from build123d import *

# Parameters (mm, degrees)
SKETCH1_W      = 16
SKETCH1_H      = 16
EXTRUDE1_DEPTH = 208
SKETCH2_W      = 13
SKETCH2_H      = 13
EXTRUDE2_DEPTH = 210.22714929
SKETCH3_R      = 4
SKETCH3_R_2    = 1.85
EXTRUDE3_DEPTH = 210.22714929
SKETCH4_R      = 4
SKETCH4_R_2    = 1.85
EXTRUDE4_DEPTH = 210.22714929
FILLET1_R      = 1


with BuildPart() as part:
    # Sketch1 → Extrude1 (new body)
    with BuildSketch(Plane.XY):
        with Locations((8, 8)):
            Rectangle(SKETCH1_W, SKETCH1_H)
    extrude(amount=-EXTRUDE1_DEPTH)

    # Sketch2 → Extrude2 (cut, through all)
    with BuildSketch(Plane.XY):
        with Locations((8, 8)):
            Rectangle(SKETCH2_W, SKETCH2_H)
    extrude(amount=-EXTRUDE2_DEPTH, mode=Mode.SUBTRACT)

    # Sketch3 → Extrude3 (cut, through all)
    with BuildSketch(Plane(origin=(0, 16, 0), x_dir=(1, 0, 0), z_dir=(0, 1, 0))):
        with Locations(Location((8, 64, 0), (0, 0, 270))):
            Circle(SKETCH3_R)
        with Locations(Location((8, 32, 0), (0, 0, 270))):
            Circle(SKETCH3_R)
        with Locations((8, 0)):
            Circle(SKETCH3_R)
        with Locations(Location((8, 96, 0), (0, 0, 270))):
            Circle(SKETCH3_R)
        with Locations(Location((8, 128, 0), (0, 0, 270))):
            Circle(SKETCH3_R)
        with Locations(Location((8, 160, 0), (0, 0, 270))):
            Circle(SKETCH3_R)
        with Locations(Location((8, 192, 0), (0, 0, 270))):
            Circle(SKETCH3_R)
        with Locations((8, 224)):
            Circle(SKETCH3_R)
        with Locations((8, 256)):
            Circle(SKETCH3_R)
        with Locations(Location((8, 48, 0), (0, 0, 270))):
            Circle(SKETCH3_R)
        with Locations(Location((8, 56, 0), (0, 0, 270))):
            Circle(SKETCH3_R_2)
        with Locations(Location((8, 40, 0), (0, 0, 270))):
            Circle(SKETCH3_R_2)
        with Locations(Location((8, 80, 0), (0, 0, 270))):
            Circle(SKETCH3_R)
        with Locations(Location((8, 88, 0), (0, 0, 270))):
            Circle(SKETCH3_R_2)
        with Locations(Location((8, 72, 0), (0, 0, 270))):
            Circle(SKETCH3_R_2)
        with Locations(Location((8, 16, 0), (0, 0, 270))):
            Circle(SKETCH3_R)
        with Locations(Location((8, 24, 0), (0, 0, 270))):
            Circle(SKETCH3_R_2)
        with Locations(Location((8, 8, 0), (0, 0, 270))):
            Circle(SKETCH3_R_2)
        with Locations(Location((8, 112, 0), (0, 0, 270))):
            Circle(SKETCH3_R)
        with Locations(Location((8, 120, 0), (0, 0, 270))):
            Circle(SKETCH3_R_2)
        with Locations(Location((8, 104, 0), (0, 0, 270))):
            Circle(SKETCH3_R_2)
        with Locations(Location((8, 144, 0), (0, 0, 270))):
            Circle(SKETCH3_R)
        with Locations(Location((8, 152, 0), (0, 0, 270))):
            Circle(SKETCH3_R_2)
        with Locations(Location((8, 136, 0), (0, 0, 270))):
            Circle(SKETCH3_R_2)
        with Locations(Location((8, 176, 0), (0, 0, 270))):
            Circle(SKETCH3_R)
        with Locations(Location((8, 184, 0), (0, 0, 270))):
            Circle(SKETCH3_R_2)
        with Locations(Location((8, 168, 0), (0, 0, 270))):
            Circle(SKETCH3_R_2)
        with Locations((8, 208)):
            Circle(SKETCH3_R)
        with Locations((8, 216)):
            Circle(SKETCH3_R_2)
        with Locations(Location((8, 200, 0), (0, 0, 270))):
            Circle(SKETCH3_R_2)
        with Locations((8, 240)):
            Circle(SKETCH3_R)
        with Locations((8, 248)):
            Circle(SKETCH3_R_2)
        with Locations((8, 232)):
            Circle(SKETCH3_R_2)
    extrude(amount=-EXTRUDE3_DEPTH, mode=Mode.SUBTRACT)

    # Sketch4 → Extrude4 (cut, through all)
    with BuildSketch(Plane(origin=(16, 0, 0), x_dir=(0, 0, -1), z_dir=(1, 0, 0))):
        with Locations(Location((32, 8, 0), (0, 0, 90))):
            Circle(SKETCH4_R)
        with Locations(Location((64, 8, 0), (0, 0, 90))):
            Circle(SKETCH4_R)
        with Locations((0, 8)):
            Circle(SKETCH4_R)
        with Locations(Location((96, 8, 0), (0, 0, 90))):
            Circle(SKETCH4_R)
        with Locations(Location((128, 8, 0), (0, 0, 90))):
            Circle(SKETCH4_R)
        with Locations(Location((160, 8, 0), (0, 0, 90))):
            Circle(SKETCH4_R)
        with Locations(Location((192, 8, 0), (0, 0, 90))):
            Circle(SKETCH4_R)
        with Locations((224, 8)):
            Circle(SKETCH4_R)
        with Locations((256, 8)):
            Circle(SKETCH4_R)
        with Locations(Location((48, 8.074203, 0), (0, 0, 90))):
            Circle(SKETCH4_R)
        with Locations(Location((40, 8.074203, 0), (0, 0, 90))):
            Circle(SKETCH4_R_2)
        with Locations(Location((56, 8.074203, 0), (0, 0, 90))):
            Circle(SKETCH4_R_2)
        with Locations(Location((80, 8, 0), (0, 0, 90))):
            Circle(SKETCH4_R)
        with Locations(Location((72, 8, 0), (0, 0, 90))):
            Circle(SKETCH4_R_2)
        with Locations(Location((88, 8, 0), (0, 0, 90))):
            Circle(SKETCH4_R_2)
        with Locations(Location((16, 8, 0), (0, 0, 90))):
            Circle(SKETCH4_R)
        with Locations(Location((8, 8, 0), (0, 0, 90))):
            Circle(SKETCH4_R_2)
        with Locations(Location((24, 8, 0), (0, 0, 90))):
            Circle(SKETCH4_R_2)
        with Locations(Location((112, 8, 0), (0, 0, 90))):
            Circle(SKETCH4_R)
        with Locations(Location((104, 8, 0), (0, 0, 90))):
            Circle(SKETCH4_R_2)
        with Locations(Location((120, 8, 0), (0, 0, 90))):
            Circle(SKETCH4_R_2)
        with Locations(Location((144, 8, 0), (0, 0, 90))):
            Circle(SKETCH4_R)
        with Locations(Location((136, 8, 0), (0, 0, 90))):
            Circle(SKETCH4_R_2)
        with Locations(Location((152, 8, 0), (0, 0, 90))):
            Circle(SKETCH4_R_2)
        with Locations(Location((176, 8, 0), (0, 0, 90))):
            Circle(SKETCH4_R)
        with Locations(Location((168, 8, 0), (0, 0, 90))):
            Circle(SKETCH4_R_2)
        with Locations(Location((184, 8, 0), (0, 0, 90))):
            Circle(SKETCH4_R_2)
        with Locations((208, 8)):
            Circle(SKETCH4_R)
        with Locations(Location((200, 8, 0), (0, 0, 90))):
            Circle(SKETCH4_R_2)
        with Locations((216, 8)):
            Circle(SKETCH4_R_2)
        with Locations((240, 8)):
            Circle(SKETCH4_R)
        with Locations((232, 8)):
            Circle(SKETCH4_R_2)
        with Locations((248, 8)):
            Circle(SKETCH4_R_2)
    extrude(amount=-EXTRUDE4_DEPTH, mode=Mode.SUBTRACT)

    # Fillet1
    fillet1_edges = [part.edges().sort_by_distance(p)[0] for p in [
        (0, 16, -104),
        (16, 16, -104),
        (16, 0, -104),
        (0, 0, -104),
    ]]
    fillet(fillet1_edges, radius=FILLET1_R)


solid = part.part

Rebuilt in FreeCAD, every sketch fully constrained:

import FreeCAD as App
import Part
import Sketcher


def edges_at(feature, points):
    """Names of the edges that pass closest to the given points."""
    edges = feature.Shape.Edges
    near = lambda p: min(range(len(edges)), key=lambda i: edges[i].distToShape(Part.Vertex(*p))[0])
    return sorted({f"Edge{near(p) + 1}" for p in points})


def add_polygon(sketch, points):
    """Adds a closed chain of lines whose ends are joined by coincident constraints."""
    first, n = sketch.GeometryCount, len(points)
    for a, b in zip(points, points[1:] + points[:1]):
        sketch.addGeometry(Part.LineSegment(App.Vector(*a, 0), App.Vector(*b, 0)), False)
    for i in range(n):
        sketch.addConstraint(Sketcher.Constraint("Coincident", first + i, 2, first + (i + 1) % n, 1))

doc = App.newDocument("Part")
body = doc.addObject("PartDesign::Body", "Body")

sketch1 = doc.addObject("Sketcher::SketchObject", "Sketch")
body.addObject(sketch1)
sketch1.AttachmentSupport = (doc.XY_Plane, [""])
sketch1.MapMode = "FlatFace"
add_polygon(sketch1, [(0, 16), (0, 0), (16, 0), (16, 16)])
sketch1.addConstraint([
    Sketcher.Constraint("Vertical", 0),
    Sketcher.Constraint("Horizontal", 1),
    Sketcher.Constraint("Vertical", 2),
    Sketcher.Constraint("Horizontal", 3),
    Sketcher.Constraint("Coincident", 0, 2, -1, 1),
    Sketcher.Constraint("Equal", 3, 0),
    Sketcher.Constraint("DistanceX", 1, 1, 1, 2, 16.0),
])
pad1 = doc.addObject("PartDesign::Pad", "Pad")
body.addObject(pad1)
pad1.Profile = sketch1
pad1.Length = 208
pad1.Reversed = True

sketch2 = doc.addObject("Sketcher::SketchObject", "Sketch001")
body.addObject(sketch2)
sketch2.AttachmentSupport = (doc.XY_Plane, [""])
sketch2.MapMode = "FlatFace"
add_polygon(sketch2, [(2, 14), (2, 2), (14, 2), (14, 14)])
sketch2.addConstraint([
    Sketcher.Constraint("Vertical", 0),
    Sketcher.Constraint("Horizontal", 1),
    Sketcher.Constraint("Vertical", 2),
    Sketcher.Constraint("Horizontal", 3),
    Sketcher.Constraint("Equal", 3, 0),
    Sketcher.Constraint("DistanceX", 1, 1, 1, 2, 13.0),
    Sketcher.Constraint("DistanceX", -1, 1, 0, 2, 1.5),
    Sketcher.Constraint("DistanceY", -1, 1, 0, 2, 1.5),
])
pocket1 = doc.addObject("PartDesign::Pocket", "Pocket")
body.addObject(pocket1)
pocket1.Profile = sketch2
pocket1.Type = "ThroughAll"

sketch3 = doc.addObject("Sketcher::SketchObject", "Sketch002")
body.addObject(sketch3)
sketch3.AttachmentSupport = (doc.XZ_Plane, [""])
sketch3.MapMode = "FlatFace"
sketch3.AttachmentOffset = App.Placement(App.Vector(0, 0, -16), App.Rotation())
sketch3.addGeometry([
    Part.Circle(App.Vector(8, -64, 0), App.Vector(0, 0, 1), 4),
    Part.Circle(App.Vector(8, -32, 0), App.Vector(0, 0, 1), 4),
    Part.Circle(App.Vector(8, 0, 0), App.Vector(0, 0, 1), 4),
    Part.Circle(App.Vector(8, -96, 0), App.Vector(0, 0, 1), 4),
    Part.Circle(App.Vector(8, -128, 0), App.Vector(0, 0, 1), 4),
    Part.Circle(App.Vector(8, -160, 0), App.Vector(0, 0, 1), 4),
    Part.Circle(App.Vector(8, -192, 0), App.Vector(0, 0, 1), 4),
    Part.Circle(App.Vector(8, -224, 0), App.Vector(0, 0, 1), 4),
    Part.Circle(App.Vector(8, -256, 0), App.Vector(0, 0, 1), 4),
    Part.Circle(App.Vector(8, -48, 0), App.Vector(0, 0, 1), 4),
    Part.Circle(App.Vector(8, -56, 0), App.Vector(0, 0, 1), 1.9),
    Part.Circle(App.Vector(8, -40, 0), App.Vector(0, 0, 1), 1.9),
    Part.Circle(App.Vector(8, -80, 0), App.Vector(0, 0, 1), 4),
    Part.Circle(App.Vector(8, -88, 0), App.Vector(0, 0, 1), 1.9),
    Part.Circle(App.Vector(8, -72, 0), App.Vector(0, 0, 1), 1.9),
    Part.Circle(App.Vector(8, -16, 0), App.Vector(0, 0, 1), 4),
    Part.Circle(App.Vector(8, -24, 0), App.Vector(0, 0, 1), 1.9),
    Part.Circle(App.Vector(8, -8, 0), App.Vector(0, 0, 1), 1.9),
    Part.Circle(App.Vector(8, -112, 0), App.Vector(0, 0, 1), 4),
    Part.Circle(App.Vector(8, -120, 0), App.Vector(0, 0, 1), 1.9),
    Part.Circle(App.Vector(8, -104, 0), App.Vector(0, 0, 1), 1.9),
    Part.Circle(App.Vector(8, -144, 0), App.Vector(0, 0, 1), 4),
    Part.Circle(App.Vector(8, -152, 0), App.Vector(0, 0, 1), 1.9),
    Part.Circle(App.Vector(8, -136, 0), App.Vector(0, 0, 1), 1.9),
    Part.Circle(App.Vector(8, -176, 0), App.Vector(0, 0, 1), 4),
    Part.Circle(App.Vector(8, -184, 0), App.Vector(0, 0, 1), 1.9),
    Part.Circle(App.Vector(8, -168, 0), App.Vector(0, 0, 1), 1.9),
    Part.Circle(App.Vector(8, -208, 0), App.Vector(0, 0, 1), 4),
    Part.Circle(App.Vector(8, -216, 0), App.Vector(0, 0, 1), 1.9),
    Part.Circle(App.Vector(8, -200, 0), App.Vector(0, 0, 1), 1.9),
    Part.Circle(App.Vector(8, -240, 0), App.Vector(0, 0, 1), 4),
    Part.Circle(App.Vector(8, -248, 0), App.Vector(0, 0, 1), 1.9),
    Part.Circle(App.Vector(8, -232, 0), App.Vector(0, 0, 1), 1.9),
], False)
sketch3.addConstraint([
    Sketcher.Constraint("Equal", 0, 1),
    Sketcher.Constraint("Equal", 1, 2),
    Sketcher.Constraint("Equal", 2, 3),
    Sketcher.Constraint("Equal", 3, 4),
    Sketcher.Constraint("Equal", 4, 5),
    Sketcher.Constraint("Equal", 5, 6),
    Sketcher.Constraint("Equal", 6, 7),
    Sketcher.Constraint("Equal", 7, 8),
    Sketcher.Constraint("Equal", 8, 9),
    Sketcher.Constraint("Equal", 10, 11),
    Sketcher.Constraint("Equal", 9, 12),
    Sketcher.Constraint("Equal", 11, 13),
    Sketcher.Constraint("Equal", 13, 14),
    Sketcher.Constraint("Equal", 12, 15),
    Sketcher.Constraint("Equal", 14, 16),
    Sketcher.Constraint("Equal", 16, 17),
    Sketcher.Constraint("Equal", 15, 18),
    Sketcher.Constraint("Equal", 17, 19),
    Sketcher.Constraint("Equal", 19, 20),
    Sketcher.Constraint("Equal", 18, 21),
    Sketcher.Constraint("Equal", 20, 22),
    Sketcher.Constraint("Equal", 22, 23),
    Sketcher.Constraint("Equal", 21, 24),
    Sketcher.Constraint("Equal", 23, 25),
    Sketcher.Constraint("Equal", 25, 26),
    Sketcher.Constraint("Equal", 24, 27),
    Sketcher.Constraint("Equal", 26, 28),
    Sketcher.Constraint("Equal", 28, 29),
    Sketcher.Constraint("Equal", 27, 30),
    Sketcher.Constraint("Equal", 29, 31),
    Sketcher.Constraint("Equal", 31, 32),
    Sketcher.Constraint("PointOnObject", 2, 3, -1),
    Sketcher.Constraint("Vertical", 0, 3, 1, 3),
    Sketcher.Constraint("Vertical", 1, 3, 2, 3),
    Sketcher.Constraint("Vertical", 2, 3, 3, 3),
    Sketcher.Constraint("Vertical", 3, 3, 4, 3),
    Sketcher.Constraint("Vertical", 4, 3, 5, 3),
    Sketcher.Constraint("Vertical", 5, 3, 6, 3),
    Sketcher.Constraint("Vertical", 6, 3, 7, 3),
    Sketcher.Constraint("Vertical", 7, 3, 8, 3),
    Sketcher.Constraint("Vertical", 8, 3, 9, 3),
    Sketcher.Constraint("Vertical", 9, 3, 10, 3),
    Sketcher.Constraint("Vertical", 10, 3, 11, 3),
    Sketcher.Constraint("Vertical", 11, 3, 12, 3),
    Sketcher.Constraint("Vertical", 12, 3, 13, 3),
    Sketcher.Constraint("Vertical", 13, 3, 14, 3),
    Sketcher.Constraint("Vertical", 14, 3, 15, 3),
    Sketcher.Constraint("Vertical", 15, 3, 16, 3),
    Sketcher.Constraint("Vertical", 16, 3, 17, 3),
    Sketcher.Constraint("Vertical", 17, 3, 18, 3),
    Sketcher.Constraint("Vertical", 18, 3, 19, 3),
    Sketcher.Constraint("Vertical", 19, 3, 20, 3),
    Sketcher.Constraint("Vertical", 20, 3, 21, 3),
    Sketcher.Constraint("Vertical", 21, 3, 22, 3),
    Sketcher.Constraint("Vertical", 22, 3, 23, 3),
    Sketcher.Constraint("Vertical", 23, 3, 24, 3),
    Sketcher.Constraint("Vertical", 24, 3, 25, 3),
    Sketcher.Constraint("Vertical", 25, 3, 26, 3),
    Sketcher.Constraint("Vertical", 26, 3, 27, 3),
    Sketcher.Constraint("Vertical", 27, 3, 28, 3),
    Sketcher.Constraint("Vertical", 28, 3, 29, 3),
    Sketcher.Constraint("Vertical", 29, 3, 30, 3),
    Sketcher.Constraint("Vertical", 30, 3, 31, 3),
    Sketcher.Constraint("Vertical", 31, 3, 32, 3),
    Sketcher.Constraint("Diameter", 0, 8.0),
    Sketcher.Constraint("Diameter", 10, 3.7),
    Sketcher.Constraint("DistanceX", -1, 1, 0, 3, 8.0),
    Sketcher.Constraint("DistanceY", 0, 3, -1, 1, 64.0),
    Sketcher.Constraint("DistanceY", 1, 3, -1, 1, 32.0),
    Sketcher.Constraint("DistanceY", 3, 3, -1, 1, 96.0),
    Sketcher.Constraint("DistanceY", 4, 3, -1, 1, 128.0),
    Sketcher.Constraint("DistanceY", 5, 3, -1, 1, 160.0),
    Sketcher.Constraint("DistanceY", 6, 3, -1, 1, 192.0),
    Sketcher.Constraint("DistanceY", 7, 3, -1, 1, 224.0),
    Sketcher.Constraint("DistanceY", 8, 3, -1, 1, 256.0),
    Sketcher.Constraint("DistanceY", 9, 3, -1, 1, 48.0),
    Sketcher.Constraint("DistanceY", 10, 3, -1, 1, 56.0),
    Sketcher.Constraint("DistanceY", 11, 3, -1, 1, 40.0),
    Sketcher.Constraint("DistanceY", 12, 3, -1, 1, 80.0),
    Sketcher.Constraint("DistanceY", 13, 3, -1, 1, 88.0),
    Sketcher.Constraint("DistanceY", 14, 3, -1, 1, 72.0),
    Sketcher.Constraint("DistanceY", 15, 3, -1, 1, 16.0),
    Sketcher.Constraint("DistanceY", 16, 3, -1, 1, 24.0),
    Sketcher.Constraint("DistanceY", 17, 3, -1, 1, 8.0),
    Sketcher.Constraint("DistanceY", 18, 3, -1, 1, 112.0),
    Sketcher.Constraint("DistanceY", 19, 3, -1, 1, 120.0),
    Sketcher.Constraint("DistanceY", 20, 3, -1, 1, 104.0),
    Sketcher.Constraint("DistanceY", 21, 3, -1, 1, 144.0),
    Sketcher.Constraint("DistanceY", 22, 3, -1, 1, 152.0),
    Sketcher.Constraint("DistanceY", 23, 3, -1, 1, 136.0),
    Sketcher.Constraint("DistanceY", 24, 3, -1, 1, 176.0),
    Sketcher.Constraint("DistanceY", 25, 3, -1, 1, 184.0),
    Sketcher.Constraint("DistanceY", 26, 3, -1, 1, 168.0),
    Sketcher.Constraint("DistanceY", 27, 3, -1, 1, 208.0),
    Sketcher.Constraint("DistanceY", 28, 3, -1, 1, 216.0),
    Sketcher.Constraint("DistanceY", 29, 3, -1, 1, 200.0),
    Sketcher.Constraint("DistanceY", 30, 3, -1, 1, 240.0),
    Sketcher.Constraint("DistanceY", 31, 3, -1, 1, 248.0),
    Sketcher.Constraint("DistanceY", 32, 3, -1, 1, 232.0),
])
pocket2 = doc.addObject("PartDesign::Pocket", "Pocket001")
body.addObject(pocket2)
pocket2.Profile = sketch3
pocket2.Type = "ThroughAll"
pocket2.Reversed = True

sketch4 = doc.addObject("Sketcher::SketchObject", "Sketch003")
body.addObject(sketch4)
sketch4.AttachmentSupport = (doc.YZ_Plane, [""])
sketch4.MapMode = "FlatFace"
sketch4.AttachmentOffset = App.Placement(App.Vector(0, 0, 16), App.Rotation())
sketch4.addGeometry([
    Part.Circle(App.Vector(8, -32, 0), App.Vector(0, 0, 1), 4),
    Part.Circle(App.Vector(8, -64, 0), App.Vector(0, 0, 1), 4),
    Part.Circle(App.Vector(8, 0, 0), App.Vector(0, 0, 1), 4),
    Part.Circle(App.Vector(8, -96, 0), App.Vector(0, 0, 1), 4),
    Part.Circle(App.Vector(8, -128, 0), App.Vector(0, 0, 1), 4),
    Part.Circle(App.Vector(8, -160, 0), App.Vector(0, 0, 1), 4),
    Part.Circle(App.Vector(8, -192, 0), App.Vector(0, 0, 1), 4),
    Part.Circle(App.Vector(8, -224, 0), App.Vector(0, 0, 1), 4),
    Part.Circle(App.Vector(8, -256, 0), App.Vector(0, 0, 1), 4),
    Part.Circle(App.Vector(8.1, -48, 0), App.Vector(0, 0, 1), 4),
    Part.Circle(App.Vector(8.1, -40, 0), App.Vector(0, 0, 1), 1.9),
    Part.Circle(App.Vector(8.1, -56, 0), App.Vector(0, 0, 1), 1.9),
    Part.Circle(App.Vector(8, -80, 0), App.Vector(0, 0, 1), 4),
    Part.Circle(App.Vector(8, -72, 0), App.Vector(0, 0, 1), 1.9),
    Part.Circle(App.Vector(8, -88, 0), App.Vector(0, 0, 1), 1.9),
    Part.Circle(App.Vector(8, -16, 0), App.Vector(0, 0, 1), 4),
    Part.Circle(App.Vector(8, -8, 0), App.Vector(0, 0, 1), 1.9),
    Part.Circle(App.Vector(8, -24, 0), App.Vector(0, 0, 1), 1.9),
    Part.Circle(App.Vector(8, -112, 0), App.Vector(0, 0, 1), 4),
    Part.Circle(App.Vector(8, -104, 0), App.Vector(0, 0, 1), 1.9),
    Part.Circle(App.Vector(8, -120, 0), App.Vector(0, 0, 1), 1.9),
    Part.Circle(App.Vector(8, -144, 0), App.Vector(0, 0, 1), 4),
    Part.Circle(App.Vector(8, -136, 0), App.Vector(0, 0, 1), 1.9),
    Part.Circle(App.Vector(8, -152, 0), App.Vector(0, 0, 1), 1.9),
    Part.Circle(App.Vector(8, -176, 0), App.Vector(0, 0, 1), 4),
    Part.Circle(App.Vector(8, -168, 0), App.Vector(0, 0, 1), 1.9),
    Part.Circle(App.Vector(8, -184, 0), App.Vector(0, 0, 1), 1.9),
    Part.Circle(App.Vector(8, -208, 0), App.Vector(0, 0, 1), 4),
    Part.Circle(App.Vector(8, -200, 0), App.Vector(0, 0, 1), 1.9),
    Part.Circle(App.Vector(8, -216, 0), App.Vector(0, 0, 1), 1.9),
    Part.Circle(App.Vector(8, -240, 0), App.Vector(0, 0, 1), 4),
    Part.Circle(App.Vector(8, -232, 0), App.Vector(0, 0, 1), 1.9),
    Part.Circle(App.Vector(8, -248, 0), App.Vector(0, 0, 1), 1.9),
], False)
sketch4.addConstraint([
    Sketcher.Constraint("Equal", 0, 1),
    Sketcher.Constraint("Equal", 1, 2),
    Sketcher.Constraint("Equal", 2, 3),
    Sketcher.Constraint("Equal", 3, 4),
    Sketcher.Constraint("Equal", 4, 5),
    Sketcher.Constraint("Equal", 5, 6),
    Sketcher.Constraint("Equal", 6, 7),
    Sketcher.Constraint("Equal", 7, 8),
    Sketcher.Constraint("Equal", 8, 9),
    Sketcher.Constraint("Equal", 10, 11),
    Sketcher.Constraint("Equal", 9, 12),
    Sketcher.Constraint("Equal", 11, 13),
    Sketcher.Constraint("Equal", 13, 14),
    Sketcher.Constraint("Equal", 12, 15),
    Sketcher.Constraint("Equal", 14, 16),
    Sketcher.Constraint("Equal", 16, 17),
    Sketcher.Constraint("Equal", 15, 18),
    Sketcher.Constraint("Equal", 17, 19),
    Sketcher.Constraint("Equal", 19, 20),
    Sketcher.Constraint("Equal", 18, 21),
    Sketcher.Constraint("Equal", 20, 22),
    Sketcher.Constraint("Equal", 22, 23),
    Sketcher.Constraint("Equal", 21, 24),
    Sketcher.Constraint("Equal", 23, 25),
    Sketcher.Constraint("Equal", 25, 26),
    Sketcher.Constraint("Equal", 24, 27),
    Sketcher.Constraint("Equal", 26, 28),
    Sketcher.Constraint("Equal", 28, 29),
    Sketcher.Constraint("Equal", 27, 30),
    Sketcher.Constraint("Equal", 29, 31),
    Sketcher.Constraint("Equal", 31, 32),
    Sketcher.Constraint("PointOnObject", 2, 3, -1),
    Sketcher.Constraint("Vertical", 0, 3, 1, 3),
    Sketcher.Constraint("Vertical", 1, 3, 2, 3),
    Sketcher.Constraint("Vertical", 2, 3, 3, 3),
    Sketcher.Constraint("Vertical", 3, 3, 4, 3),
    Sketcher.Constraint("Vertical", 4, 3, 5, 3),
    Sketcher.Constraint("Vertical", 5, 3, 6, 3),
    Sketcher.Constraint("Vertical", 6, 3, 7, 3),
    Sketcher.Constraint("Vertical", 7, 3, 8, 3),
    Sketcher.Constraint("Vertical", 9, 3, 10, 3),
    Sketcher.Constraint("Vertical", 10, 3, 11, 3),
    Sketcher.Constraint("Vertical", 8, 3, 12, 3),
    Sketcher.Constraint("Vertical", 12, 3, 13, 3),
    Sketcher.Constraint("Vertical", 13, 3, 14, 3),
    Sketcher.Constraint("Vertical", 14, 3, 15, 3),
    Sketcher.Constraint("Vertical", 15, 3, 16, 3),
    Sketcher.Constraint("Vertical", 16, 3, 17, 3),
    Sketcher.Constraint("Vertical", 17, 3, 18, 3),
    Sketcher.Constraint("Vertical", 18, 3, 19, 3),
    Sketcher.Constraint("Vertical", 19, 3, 20, 3),
    Sketcher.Constraint("Vertical", 20, 3, 21, 3),
    Sketcher.Constraint("Vertical", 21, 3, 22, 3),
    Sketcher.Constraint("Vertical", 22, 3, 23, 3),
    Sketcher.Constraint("Vertical", 23, 3, 24, 3),
    Sketcher.Constraint("Vertical", 24, 3, 25, 3),
    Sketcher.Constraint("Vertical", 25, 3, 26, 3),
    Sketcher.Constraint("Vertical", 26, 3, 27, 3),
    Sketcher.Constraint("Vertical", 27, 3, 28, 3),
    Sketcher.Constraint("Vertical", 28, 3, 29, 3),
    Sketcher.Constraint("Vertical", 29, 3, 30, 3),
    Sketcher.Constraint("Vertical", 30, 3, 31, 3),
    Sketcher.Constraint("Vertical", 31, 3, 32, 3),
    Sketcher.Constraint("Diameter", 0, 8.0),
    Sketcher.Constraint("Diameter", 10, 3.7),
    Sketcher.Constraint("DistanceX", -1, 1, 0, 3, 8.0),
    Sketcher.Constraint("DistanceY", 0, 3, -1, 1, 32.0),
    Sketcher.Constraint("DistanceY", 1, 3, -1, 1, 64.0),
    Sketcher.Constraint("DistanceY", 3, 3, -1, 1, 96.0),
    Sketcher.Constraint("DistanceY", 4, 3, -1, 1, 128.0),
    Sketcher.Constraint("DistanceY", 5, 3, -1, 1, 160.0),
    Sketcher.Constraint("DistanceY", 6, 3, -1, 1, 192.0),
    Sketcher.Constraint("DistanceY", 7, 3, -1, 1, 224.0),
    Sketcher.Constraint("DistanceY", 8, 3, -1, 1, 256.0),
    Sketcher.Constraint("DistanceY", 9, 3, -1, 1, 48.0),
    Sketcher.Constraint("DistanceY", 10, 3, -1, 1, 40.0),
    Sketcher.Constraint("DistanceY", 11, 3, -1, 1, 56.0),
    Sketcher.Constraint("DistanceY", 12, 3, -1, 1, 80.0),
    Sketcher.Constraint("DistanceY", 13, 3, -1, 1, 72.0),
    Sketcher.Constraint("DistanceY", 14, 3, -1, 1, 88.0),
    Sketcher.Constraint("DistanceY", 15, 3, -1, 1, 16.0),
    Sketcher.Constraint("DistanceY", 16, 3, -1, 1, 8.0),
    Sketcher.Constraint("DistanceY", 17, 3, -1, 1, 24.0),
    Sketcher.Constraint("DistanceY", 18, 3, -1, 1, 112.0),
    Sketcher.Constraint("DistanceY", 19, 3, -1, 1, 104.0),
    Sketcher.Constraint("DistanceY", 20, 3, -1, 1, 120.0),
    Sketcher.Constraint("DistanceY", 21, 3, -1, 1, 144.0),
    Sketcher.Constraint("DistanceY", 22, 3, -1, 1, 136.0),
    Sketcher.Constraint("DistanceY", 23, 3, -1, 1, 152.0),
    Sketcher.Constraint("DistanceY", 24, 3, -1, 1, 176.0),
    Sketcher.Constraint("DistanceY", 25, 3, -1, 1, 168.0),
    Sketcher.Constraint("DistanceY", 26, 3, -1, 1, 184.0),
    Sketcher.Constraint("DistanceY", 27, 3, -1, 1, 208.0),
    Sketcher.Constraint("DistanceY", 28, 3, -1, 1, 200.0),
    Sketcher.Constraint("DistanceY", 29, 3, -1, 1, 216.0),
    Sketcher.Constraint("DistanceY", 30, 3, -1, 1, 240.0),
    Sketcher.Constraint("DistanceY", 31, 3, -1, 1, 232.0),
    Sketcher.Constraint("DistanceY", 32, 3, -1, 1, 248.0),
    Sketcher.Constraint("DistanceX", -1, 1, 9, 3, 8.074203),
])
pocket3 = doc.addObject("PartDesign::Pocket", "Pocket002")
body.addObject(pocket3)
pocket3.Profile = sketch4
pocket3.Type = "ThroughAll"
doc.recompute()

fillet = doc.addObject("PartDesign::Fillet", "Fillet")
body.addObject(fillet)
fillet.Base = (pocket3, edges_at(pocket3, [
    (0, 16, -104),
    (16, 16, -104),
    (16, 0, -104),
    (0, 0, -104),
]))
fillet.Radius = 1

doc.recompute()
